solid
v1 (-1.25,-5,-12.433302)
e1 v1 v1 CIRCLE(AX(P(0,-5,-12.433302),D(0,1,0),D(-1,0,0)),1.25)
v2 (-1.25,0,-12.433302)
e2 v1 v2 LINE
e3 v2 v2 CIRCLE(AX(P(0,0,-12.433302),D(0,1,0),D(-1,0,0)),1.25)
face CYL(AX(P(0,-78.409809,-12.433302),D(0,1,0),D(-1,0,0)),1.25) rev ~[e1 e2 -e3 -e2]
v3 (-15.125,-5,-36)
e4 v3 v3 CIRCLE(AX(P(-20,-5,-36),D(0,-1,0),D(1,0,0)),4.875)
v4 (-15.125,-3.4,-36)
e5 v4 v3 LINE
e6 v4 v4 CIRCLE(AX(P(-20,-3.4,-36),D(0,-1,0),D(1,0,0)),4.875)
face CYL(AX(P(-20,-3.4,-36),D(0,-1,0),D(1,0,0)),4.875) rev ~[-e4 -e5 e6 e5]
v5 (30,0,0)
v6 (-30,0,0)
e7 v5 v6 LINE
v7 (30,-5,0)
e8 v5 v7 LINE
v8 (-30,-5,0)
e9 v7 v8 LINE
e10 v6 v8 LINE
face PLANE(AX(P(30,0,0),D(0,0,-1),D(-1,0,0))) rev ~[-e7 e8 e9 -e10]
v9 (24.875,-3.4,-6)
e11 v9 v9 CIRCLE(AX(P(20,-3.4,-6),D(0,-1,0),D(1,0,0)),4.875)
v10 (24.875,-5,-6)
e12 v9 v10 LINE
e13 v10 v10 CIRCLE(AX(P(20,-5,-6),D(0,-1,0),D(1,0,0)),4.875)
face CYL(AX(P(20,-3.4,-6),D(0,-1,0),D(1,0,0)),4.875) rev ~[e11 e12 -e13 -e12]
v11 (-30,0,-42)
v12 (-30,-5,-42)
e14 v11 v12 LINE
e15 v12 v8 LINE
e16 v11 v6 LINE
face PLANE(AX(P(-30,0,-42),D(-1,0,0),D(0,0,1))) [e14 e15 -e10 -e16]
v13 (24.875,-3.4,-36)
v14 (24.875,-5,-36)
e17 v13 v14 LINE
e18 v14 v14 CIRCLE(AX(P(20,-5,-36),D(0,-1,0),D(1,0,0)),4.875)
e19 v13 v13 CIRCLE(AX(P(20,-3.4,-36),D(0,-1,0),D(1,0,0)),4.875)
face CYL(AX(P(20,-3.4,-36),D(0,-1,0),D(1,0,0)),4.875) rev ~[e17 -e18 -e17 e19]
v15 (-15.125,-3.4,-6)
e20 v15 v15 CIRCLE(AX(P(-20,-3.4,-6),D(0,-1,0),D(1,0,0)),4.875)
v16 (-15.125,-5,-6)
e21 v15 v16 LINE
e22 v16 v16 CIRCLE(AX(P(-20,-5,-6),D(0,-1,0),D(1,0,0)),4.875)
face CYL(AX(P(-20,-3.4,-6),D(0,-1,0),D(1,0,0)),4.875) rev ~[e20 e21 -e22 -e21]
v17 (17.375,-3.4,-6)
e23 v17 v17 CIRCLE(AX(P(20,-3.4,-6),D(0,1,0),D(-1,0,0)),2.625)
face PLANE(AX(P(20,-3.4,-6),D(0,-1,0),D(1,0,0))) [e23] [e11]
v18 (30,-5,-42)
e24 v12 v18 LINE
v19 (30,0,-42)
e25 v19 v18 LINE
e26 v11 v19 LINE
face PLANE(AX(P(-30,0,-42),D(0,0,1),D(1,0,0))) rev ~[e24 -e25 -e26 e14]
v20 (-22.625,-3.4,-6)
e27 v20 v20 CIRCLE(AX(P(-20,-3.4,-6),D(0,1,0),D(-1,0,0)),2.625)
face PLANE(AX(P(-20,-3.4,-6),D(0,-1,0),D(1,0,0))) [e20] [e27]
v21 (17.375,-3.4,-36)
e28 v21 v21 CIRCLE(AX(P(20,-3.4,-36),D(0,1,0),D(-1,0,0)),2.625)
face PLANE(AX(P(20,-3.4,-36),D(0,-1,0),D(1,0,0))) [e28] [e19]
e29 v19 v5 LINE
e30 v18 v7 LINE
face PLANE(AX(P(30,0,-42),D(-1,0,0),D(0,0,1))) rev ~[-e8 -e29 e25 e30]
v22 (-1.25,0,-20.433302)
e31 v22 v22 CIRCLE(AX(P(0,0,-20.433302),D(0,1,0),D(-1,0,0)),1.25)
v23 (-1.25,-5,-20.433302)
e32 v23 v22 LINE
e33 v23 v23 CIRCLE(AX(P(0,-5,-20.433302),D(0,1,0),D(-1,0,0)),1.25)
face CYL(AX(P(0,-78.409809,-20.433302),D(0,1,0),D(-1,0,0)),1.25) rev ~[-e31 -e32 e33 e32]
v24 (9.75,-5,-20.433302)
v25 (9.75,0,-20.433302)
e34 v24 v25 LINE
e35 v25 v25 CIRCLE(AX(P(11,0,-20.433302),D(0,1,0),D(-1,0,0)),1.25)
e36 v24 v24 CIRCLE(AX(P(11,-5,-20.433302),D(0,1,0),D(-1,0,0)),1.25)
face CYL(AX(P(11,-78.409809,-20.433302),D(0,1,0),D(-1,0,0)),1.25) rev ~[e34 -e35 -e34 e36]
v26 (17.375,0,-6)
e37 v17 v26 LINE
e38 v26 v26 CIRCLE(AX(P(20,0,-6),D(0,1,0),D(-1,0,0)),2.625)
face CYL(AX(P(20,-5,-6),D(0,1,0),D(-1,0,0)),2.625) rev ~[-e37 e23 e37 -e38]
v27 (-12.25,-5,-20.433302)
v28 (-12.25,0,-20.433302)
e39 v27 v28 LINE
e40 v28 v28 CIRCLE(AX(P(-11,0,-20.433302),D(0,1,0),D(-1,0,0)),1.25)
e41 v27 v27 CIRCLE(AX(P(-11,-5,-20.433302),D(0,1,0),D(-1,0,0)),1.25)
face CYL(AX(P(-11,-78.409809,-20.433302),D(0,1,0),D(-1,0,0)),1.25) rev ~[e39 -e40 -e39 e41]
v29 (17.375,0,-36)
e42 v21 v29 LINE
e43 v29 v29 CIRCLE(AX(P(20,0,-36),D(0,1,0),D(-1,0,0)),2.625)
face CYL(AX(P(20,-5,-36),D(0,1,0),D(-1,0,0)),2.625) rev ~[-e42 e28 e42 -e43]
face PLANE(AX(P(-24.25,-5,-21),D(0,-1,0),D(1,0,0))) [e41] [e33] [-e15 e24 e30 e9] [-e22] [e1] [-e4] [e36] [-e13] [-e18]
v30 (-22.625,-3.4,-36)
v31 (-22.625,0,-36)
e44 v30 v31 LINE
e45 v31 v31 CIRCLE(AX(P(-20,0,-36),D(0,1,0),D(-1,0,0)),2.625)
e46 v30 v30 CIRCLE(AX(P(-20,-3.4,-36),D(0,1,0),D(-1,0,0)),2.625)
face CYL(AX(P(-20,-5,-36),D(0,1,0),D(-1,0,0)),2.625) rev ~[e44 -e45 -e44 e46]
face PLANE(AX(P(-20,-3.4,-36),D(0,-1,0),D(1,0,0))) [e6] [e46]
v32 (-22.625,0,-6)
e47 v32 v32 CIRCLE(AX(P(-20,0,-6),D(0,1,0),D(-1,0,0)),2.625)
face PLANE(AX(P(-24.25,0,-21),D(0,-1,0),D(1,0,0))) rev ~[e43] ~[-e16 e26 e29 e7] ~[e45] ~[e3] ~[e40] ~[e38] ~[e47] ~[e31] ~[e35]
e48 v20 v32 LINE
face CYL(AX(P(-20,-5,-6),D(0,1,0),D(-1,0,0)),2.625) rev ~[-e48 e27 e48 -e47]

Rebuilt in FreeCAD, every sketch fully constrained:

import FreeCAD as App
import Part
import Sketcher
from FreeCAD import Vector


def add_polygon(sketch, points):
    """Adds a closed chain of lines whose ends are joined by coincident constraints."""
    first, n = sketch.GeometryCount, len(points)
    for a, b in zip(points, points[1:] + points[:1]):
        sketch.addGeometry(Part.LineSegment(App.Vector(*a, 0), App.Vector(*b, 0)), False)
    for i in range(n):
        sketch.addConstraint(Sketcher.Constraint("Coincident", first + i, 2, first + (i + 1) % n, 1))

doc = App.newDocument("Part")
params = doc.addObject("Spreadsheet::Sheet", "Params")
for row, (alias, value) in enumerate([
    ("sketch1_width", "60 mm"),
    ("sketch1_height", "42 mm"),
    ("pad1_length", "5 mm"),
    ("sketch2_diameter", "5.25 mm"),
    ("hole_diameter", "5.25 mm"),
    ("hole_depth", "50 mm"),
    ("hole_cbore_diameter", "9.75 mm"),
    ("hole_cbore_depth", "1.6 mm"),
    ("sketch3_diameter", "2.5 mm"),
    ("hole2_diameter", "2.5 mm"),
], start=1):
    params.set(f"A{row}", alias)
    params.set(f"B{row}", "=" + value)
    params.setAlias(f"B{row}", alias)

body = doc.addObject("PartDesign::Body", "Body")

# Sketch on XZ plane
sketch1 = doc.addObject("Sketcher::SketchObject", "Sketch")
body.addObject(sketch1)
sketch1.AttachmentSupport = (doc.XZ_Plane, [""])
sketch1.MapMode = "FlatFace"
add_polygon(sketch1, [(-30, 0), (-30, -42), (30, -42), (30, 0)])  # lines 0-3
sketch1.addConstraint(Sketcher.Constraint("Vertical", 0))
sketch1.addConstraint(Sketcher.Constraint("Horizontal", 1))
sketch1.addConstraint(Sketcher.Constraint("Vertical", 2))
sketch1.addConstraint(Sketcher.Constraint("Horizontal", 3))
sketch1.addConstraint(Sketcher.Constraint("Symmetric", 2, 2, 3, 2, -1, 1))
sketch1.addConstraint(Sketcher.Constraint("DistanceX", 1, 1, 1, 2, 60.0))
sketch1.addConstraint(Sketcher.Constraint("DistanceY", 0, 2, 0, 1, 42.0))
sketch1.setExpression("Constraints[9]", "Params.sketch1_width")
sketch1.setExpression("Constraints[10]", "Params.sketch1_height")
pad1 = doc.addObject("PartDesign::Pad", "Pad")
body.addObject(pad1)
pad1.Profile = sketch1
pad1.setExpression("Length", "Params.pad1_length")

# Sketch on XZ plane
sketch2 = doc.addObject("Sketcher::SketchObject", "Sketch001")
body.addObject(sketch2)
sketch2.AttachmentSupport = (doc.XZ_Plane, [""])
sketch2.MapMode = "FlatFace"
sketch2.AttachmentOffset = App.Placement(Vector(0, 0, 5), App.Rotation())
sketch2.addGeometry(Part.Circle(Vector(-20, -6, 0), Vector(0, 0, 1), 2.625), False)
sketch2.addGeometry(Part.Circle(Vector(20, -6, 0), Vector(0, 0, 1), 2.625), False)
sketch2.addGeometry(Part.Circle(Vector(20, -36, 0), Vector(0, 0, 1), 2.625), False)
sketch2.addGeometry(Part.Circle(Vector(-20, -36, 0), Vector(0, 0, 1), 2.625), False)
sketch2.addConstraint(Sketcher.Constraint("Equal", 0, 1))
sketch2.addConstraint(Sketcher.Constraint("Equal", 1, 2))
sketch2.addConstraint(Sketcher.Constraint("Equal", 2, 3))
sketch2.addConstraint(Sketcher.Constraint("Symmetric", 0, 3, 1, 3, -2))
sketch2.addConstraint(Sketcher.Constraint("Symmetric", 2, 3, 3, 3, -2))
sketch2.addConstraint(Sketcher.Constraint("Vertical", 1, 3, 2, 3))
sketch2.addConstraint(Sketcher.Constraint("Diameter", 0, 5.25))
sketch2.addConstraint(Sketcher.Constraint("DistanceX", 0, 3, -1, 1, 20.0))
sketch2.addConstraint(Sketcher.Constraint("DistanceY", 0, 3, -1, 1, 6.0))
sketch2.addConstraint(Sketcher.Constraint("DistanceY", 2, 3, -1, 1, 36.0))
sketch2.setExpression("Constraints[6]", "Params.sketch2_diameter")
doc.recompute()
hole = doc.addObject("PartDesign::Hole", "Hole")
body.addObject(hole)
hole.Profile = sketch2
hole.ThreadType = "None"
hole.setExpression("Diameter", "Params.hole_diameter")
hole.DepthType = "Dimension"
hole.setExpression("Depth", "Params.hole_depth")
hole.DrillPoint = "Angled"
hole.DrillPointAngle = 118
hole.HoleCutType = "Counterbore"
hole.setExpression("HoleCutDiameter", "Params.hole_cbore_diameter")
hole.setExpression("HoleCutDepth", "Params.hole_cbore_depth")

# Sketch on XZ plane
sketch3 = doc.addObject("Sketcher::SketchObject", "Sketch002")
body.addObject(sketch3)
sketch3.AttachmentSupport = (doc.XZ_Plane, [""])
sketch3.MapMode = "FlatFace"
sketch3.AttachmentOffset = App.Placement(Vector(0, 0, 5), App.Rotation())
sketch3.addGeometry(Part.Circle(Vector(0, -12.433302, 0), Vector(0, 0, 1), 1.25), False)
sketch3.addGeometry(Part.Circle(Vector(0, -20.433302, 0), Vector(0, 0, 1), 1.25), False)
sketch3.addGeometry(Part.Circle(Vector(-11, -20.433302, 0), Vector(0, 0, 1), 1.25), False)
sketch3.addGeometry(Part.Circle(Vector(11, -20.433302, 0), Vector(0, 0, 1), 1.25), False)
sketch3.addConstraint(Sketcher.Constraint("Equal", 0, 1))
sketch3.addConstraint(Sketcher.Constraint("Equal", 1, 2))
sketch3.addConstraint(Sketcher.Constraint("Equal", 2, 3))
sketch3.addConstraint(Sketcher.Constraint("Symmetric", 2, 3, 3, 3, -2))
sketch3.addConstraint(Sketcher.Constraint("PointOnObject", 0, 3, -2))
sketch3.addConstraint(Sketcher.Constraint("PointOnObject", 1, 3, -2))
sketch3.addConstraint(Sketcher.Constraint("Horizontal", 1, 3, 2, 3))
sketch3.addConstraint(Sketcher.Constraint("Diameter", 0, 2.5))
sketch3.addConstraint(Sketcher.Constraint("DistanceX", 2, 3, -1, 1, 11.0))
sketch3.addConstraint(Sketcher.Constraint("DistanceY", 1, 3, 0, 3, 8.0))
sketch3.addConstraint(Sketcher.Constraint("DistanceY", 0, 3, -1, 1, 12.433302))
sketch3.setExpression("Constraints[7]", "Params.sketch3_diameter")
doc.recompute()
hole2 = doc.addObject("PartDesign::Hole", "Hole001")
body.addObject(hole2)
hole2.Profile = sketch3
hole2.ThreadType = "None"
hole2.setExpression("Diameter", "Params.hole2_diameter")
hole2.DepthType = "ThroughAll"

doc.recompute()
